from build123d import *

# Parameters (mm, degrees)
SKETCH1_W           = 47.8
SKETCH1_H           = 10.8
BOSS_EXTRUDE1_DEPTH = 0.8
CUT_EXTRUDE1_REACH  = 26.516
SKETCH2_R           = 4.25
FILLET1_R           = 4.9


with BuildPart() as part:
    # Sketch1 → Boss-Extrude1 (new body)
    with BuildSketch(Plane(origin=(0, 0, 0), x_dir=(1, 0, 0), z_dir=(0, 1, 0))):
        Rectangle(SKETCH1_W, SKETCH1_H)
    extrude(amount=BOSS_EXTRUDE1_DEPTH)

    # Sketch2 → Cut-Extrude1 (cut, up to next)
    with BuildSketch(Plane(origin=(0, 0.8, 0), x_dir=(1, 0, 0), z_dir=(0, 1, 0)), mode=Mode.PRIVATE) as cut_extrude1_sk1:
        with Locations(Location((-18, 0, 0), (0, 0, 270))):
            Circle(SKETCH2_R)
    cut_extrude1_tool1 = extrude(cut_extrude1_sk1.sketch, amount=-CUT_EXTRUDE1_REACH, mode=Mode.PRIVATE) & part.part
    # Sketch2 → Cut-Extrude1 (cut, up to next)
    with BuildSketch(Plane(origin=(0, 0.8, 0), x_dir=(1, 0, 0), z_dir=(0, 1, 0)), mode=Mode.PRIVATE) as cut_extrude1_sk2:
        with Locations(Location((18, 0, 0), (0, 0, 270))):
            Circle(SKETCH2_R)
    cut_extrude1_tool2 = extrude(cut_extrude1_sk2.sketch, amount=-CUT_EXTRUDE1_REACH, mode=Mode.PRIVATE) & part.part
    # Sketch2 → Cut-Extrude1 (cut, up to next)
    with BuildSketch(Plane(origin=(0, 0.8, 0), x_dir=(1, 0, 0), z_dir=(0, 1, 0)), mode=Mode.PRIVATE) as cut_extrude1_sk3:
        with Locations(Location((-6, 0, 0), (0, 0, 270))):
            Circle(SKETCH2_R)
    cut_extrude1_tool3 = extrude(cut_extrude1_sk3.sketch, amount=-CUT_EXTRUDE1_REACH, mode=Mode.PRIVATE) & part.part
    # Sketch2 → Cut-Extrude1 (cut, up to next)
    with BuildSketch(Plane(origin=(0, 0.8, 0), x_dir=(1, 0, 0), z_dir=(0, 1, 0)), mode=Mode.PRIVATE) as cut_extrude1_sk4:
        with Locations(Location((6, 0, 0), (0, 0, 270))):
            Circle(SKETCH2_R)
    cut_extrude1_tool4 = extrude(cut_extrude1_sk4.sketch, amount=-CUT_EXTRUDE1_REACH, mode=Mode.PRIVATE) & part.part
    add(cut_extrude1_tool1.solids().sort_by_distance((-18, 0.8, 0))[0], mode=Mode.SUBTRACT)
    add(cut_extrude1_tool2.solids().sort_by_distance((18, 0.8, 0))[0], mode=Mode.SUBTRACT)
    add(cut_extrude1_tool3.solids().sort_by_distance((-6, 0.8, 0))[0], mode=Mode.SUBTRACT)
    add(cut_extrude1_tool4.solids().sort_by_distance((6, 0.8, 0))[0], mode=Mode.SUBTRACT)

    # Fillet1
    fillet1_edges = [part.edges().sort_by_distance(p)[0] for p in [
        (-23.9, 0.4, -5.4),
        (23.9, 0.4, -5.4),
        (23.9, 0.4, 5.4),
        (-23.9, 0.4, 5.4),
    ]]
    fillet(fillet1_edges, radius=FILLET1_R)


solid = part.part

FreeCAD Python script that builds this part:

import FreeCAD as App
import Part
import Sketcher
from FreeCAD import Vector


def edges_at(feature, points):
    """Names of the edges that pass closest to the given points."""
    edges = feature.Shape.Edges
    near = lambda p: min(range(len(edges)), key=lambda i: edges[i].distToShape(Part.Vertex(*p))[0])
    return sorted({f"Edge{near(p) + 1}" for p in points})


def add_polygon(sketch, points):
    """Adds a closed chain of lines whose ends are joined by coincident constraints."""
    first, n = sketch.GeometryCount, len(points)
    for a, b in zip(points, points[1:] + points[:1]):
        sketch.addGeometry(Part.LineSegment(App.Vector(*a, 0), App.Vector(*b, 0)), False)
    for i in range(n):
        sketch.addConstraint(Sketcher.Constraint("Coincident", first + i, 2, first + (i + 1) % n, 1))

doc = App.newDocument("Part")
body = doc.addObject("PartDesign::Body", "Body")

# Sketch on XZ plane
sketch1 = body.newObject("Sketcher::SketchObject", "Sketch")
sketch1.AttachmentSupport = (doc.getObject("XZ_Plane"), [""])
sketch1.MapMode = "FlatFace"
add_polygon(sketch1, [(-24, -5), (-24, 5), (24, 5), (24, -5)])  # lines 0-3
sketch1.addConstraint(Sketcher.Constraint("Vertical", 0))
sketch1.addConstraint(Sketcher.Constraint("Horizontal", 1))
sketch1.addConstraint(Sketcher.Constraint("Vertical", 2))
sketch1.addConstraint(Sketcher.Constraint("Horizontal", 3))
sketch1.addConstraint(Sketcher.Constraint("Symmetric", 0, 2, 2, 2, -1, 1))
sketch1.addConstraint(Sketcher.Constraint("DistanceX", 1, 1, 1, 2, 47.8))
sketch1.addConstraint(Sketcher.Constraint("DistanceY", 0, 1, 0, 2, 10.8))
pad1 = body.newObject("PartDesign::Pad", "Pad")
pad1.Profile = sketch1
pad1.Length = 0.8
pad1.Reversed = True

# Sketch on XZ plane
sketch2 = body.newObject("Sketcher::SketchObject", "Sketch001")
sketch2.AttachmentSupport = (doc.getObject("XZ_Plane"), [""])
sketch2.MapMode = "FlatFace"
sketch2.AttachmentOffset = App.Placement(Vector(0, 0, -0.8), App.Rotation())
sketch2.addGeometry(Part.Circle(Vector(-18, 0, 0), Vector(0, 0, 1), 4.2), False)
sketch2.addConstraint(Sketcher.Constraint("PointOnObject", 0, 3, -1))
sketch2.addConstraint(Sketcher.Constraint("Diameter", 0, 8.5))
sketch2.addConstraint(Sketcher.Constraint("DistanceX", 0, 3, -1, 1, 18.0))
pocket1 = body.newObject("PartDesign::Pocket", "Pocket")
pocket1.Profile = sketch2
pocket1.Type = "UpToFirst"
pocket1.Reversed = True

# Sketch on XZ plane
sketch3 = body.newObject("Sketcher::SketchObject", "Sketch002")
sketch3.AttachmentSupport = (doc.getObject("XZ_Plane"), [""])
sketch3.MapMode = "FlatFace"
sketch3.AttachmentOffset = App.Placement(Vector(0, 0, -0.8), App.Rotation())
sketch3.addGeometry(Part.Circle(Vector(18, 0, 0), Vector(0, 0, 1), 4.2), False)
sketch3.addConstraint(Sketcher.Constraint("PointOnObject", 0, 3, -1))
sketch3.addConstraint(Sketcher.Constraint("Diameter", 0, 8.5))
sketch3.addConstraint(Sketcher.Constraint("DistanceX", -1, 1, 0, 3, 18.0))
pocket2 = body.newObject("PartDesign::Pocket", "Pocket001")
pocket2.Profile = sketch3
pocket2.Type = "UpToFirst"
pocket2.Reversed = True

# Sketch on XZ plane
sketch4 = body.newObject("Sketcher::SketchObject", "Sketch003")
sketch4.AttachmentSupport = (doc.getObject("XZ_Plane"), [""])
sketch4.MapMode = "FlatFace"
sketch4.AttachmentOffset = App.Placement(Vector(0, 0, -0.8), App.Rotation())
sketch4.addGeometry(Part.Circle(Vector(-6, 0, 0), Vector(0, 0, 1), 4.2), False)
sketch4.addConstraint(Sketcher.Constraint("PointOnObject", 0, 3, -1))
sketch4.addConstraint(Sketcher.Constraint("Diameter", 0, 8.5))
sketch4.addConstraint(Sketcher.Constraint("DistanceX", 0, 3, -1, 1, 6.0))
pocket3 = body.newObject("PartDesign::Pocket", "Pocket002")
pocket3.Profile = sketch4
pocket3.Type = "UpToFirst"
pocket3.Reversed = True

# Sketch on XZ plane
sketch5 = body.newObject("Sketcher::SketchObject", "Sketch004")
sketch5.AttachmentSupport = (doc.getObject("XZ_Plane"), [""])
sketch5.MapMode = "FlatFace"
sketch5.AttachmentOffset = App.Placement(Vector(0, 0, -0.8), App.Rotation())
sketch5.addGeometry(Part.Circle(Vector(6, 0, 0), Vector(0, 0, 1), 4.2), False)
sketch5.addConstraint(Sketcher.Constraint("PointOnObject", 0, 3, -1))
sketch5.addConstraint(Sketcher.Constraint("Diameter", 0, 8.5))
sketch5.addConstraint(Sketcher.Constraint("DistanceX", -1, 1, 0, 3, 6.0))
pocket4 = body.newObject("PartDesign::Pocket", "Pocket003")
pocket4.Profile = sketch5
pocket4.Type = "UpToFirst"
pocket4.Reversed = True
doc.recompute()

fillet = body.newObject("PartDesign::Fillet", "Fillet")
fillet.Base = (pocket4, edges_at(pocket4, [
    (-23.9, 0.4, -5.4),
    (23.9, 0.4, -5.4),
    (23.9, 0.4, 5.4),
    (-23.9, 0.4, 5.4),
]))
fillet.Radius = 4.9

doc.recompute()
